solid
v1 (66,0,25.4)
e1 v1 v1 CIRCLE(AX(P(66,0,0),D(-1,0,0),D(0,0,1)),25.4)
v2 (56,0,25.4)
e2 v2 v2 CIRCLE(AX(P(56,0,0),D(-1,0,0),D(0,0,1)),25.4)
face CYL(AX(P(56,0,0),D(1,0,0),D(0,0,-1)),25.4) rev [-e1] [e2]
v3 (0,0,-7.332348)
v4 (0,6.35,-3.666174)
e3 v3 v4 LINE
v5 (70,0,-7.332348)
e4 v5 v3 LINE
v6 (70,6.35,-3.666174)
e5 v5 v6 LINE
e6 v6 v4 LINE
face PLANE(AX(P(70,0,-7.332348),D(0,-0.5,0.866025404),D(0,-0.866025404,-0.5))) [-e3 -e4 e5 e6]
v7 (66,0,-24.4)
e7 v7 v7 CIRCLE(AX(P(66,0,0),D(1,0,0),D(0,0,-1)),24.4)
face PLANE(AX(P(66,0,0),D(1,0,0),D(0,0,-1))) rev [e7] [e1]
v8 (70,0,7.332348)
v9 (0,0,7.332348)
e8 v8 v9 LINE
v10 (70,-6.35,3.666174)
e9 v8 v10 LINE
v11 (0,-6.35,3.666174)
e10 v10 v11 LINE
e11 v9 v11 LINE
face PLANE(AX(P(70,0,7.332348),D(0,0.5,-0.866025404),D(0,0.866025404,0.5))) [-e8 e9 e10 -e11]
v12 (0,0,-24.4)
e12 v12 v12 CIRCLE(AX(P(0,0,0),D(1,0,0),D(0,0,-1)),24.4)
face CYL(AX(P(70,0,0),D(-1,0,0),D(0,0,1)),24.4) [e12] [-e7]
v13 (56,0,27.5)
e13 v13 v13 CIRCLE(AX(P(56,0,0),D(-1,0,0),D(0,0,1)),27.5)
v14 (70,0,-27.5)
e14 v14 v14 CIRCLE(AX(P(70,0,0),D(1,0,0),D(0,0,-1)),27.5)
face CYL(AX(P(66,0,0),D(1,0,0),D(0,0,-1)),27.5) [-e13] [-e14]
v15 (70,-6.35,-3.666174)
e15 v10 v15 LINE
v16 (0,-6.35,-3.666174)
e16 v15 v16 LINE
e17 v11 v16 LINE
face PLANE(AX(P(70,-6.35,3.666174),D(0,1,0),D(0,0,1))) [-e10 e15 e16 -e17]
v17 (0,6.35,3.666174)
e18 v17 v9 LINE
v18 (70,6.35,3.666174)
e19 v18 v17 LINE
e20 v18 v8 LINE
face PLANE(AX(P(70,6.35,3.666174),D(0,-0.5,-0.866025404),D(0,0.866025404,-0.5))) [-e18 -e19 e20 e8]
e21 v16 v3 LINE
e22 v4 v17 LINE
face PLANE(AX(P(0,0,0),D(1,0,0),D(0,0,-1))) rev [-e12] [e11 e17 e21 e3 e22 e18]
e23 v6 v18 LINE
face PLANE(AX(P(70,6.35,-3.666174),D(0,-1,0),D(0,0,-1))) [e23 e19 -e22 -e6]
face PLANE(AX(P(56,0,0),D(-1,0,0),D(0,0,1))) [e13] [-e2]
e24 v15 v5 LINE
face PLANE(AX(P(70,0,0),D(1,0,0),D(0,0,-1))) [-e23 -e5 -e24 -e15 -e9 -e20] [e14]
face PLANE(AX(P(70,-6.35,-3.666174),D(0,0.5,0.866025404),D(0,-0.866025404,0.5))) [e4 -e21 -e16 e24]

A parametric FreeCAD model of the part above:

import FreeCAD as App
import Part
import Sketcher
from FreeCAD import Vector
Q = App.Units.Quantity


def add_polygon(sketch, points):
    """Adds a closed chain of lines whose ends are joined by coincident constraints."""
    first, n = sketch.GeometryCount, len(points)
    for a, b in zip(points, points[1:] + points[:1]):
        sketch.addGeometry(Part.LineSegment(App.Vector(*a, 0), App.Vector(*b, 0)), False)
    for i in range(n):
        sketch.addConstraint(Sketcher.Constraint("Coincident", first + i, 2, first + (i + 1) % n, 1))

doc = App.newDocument("Part")
body = doc.addObject("PartDesign::Body", "Body")

sketch1 = doc.addObject("Sketcher::SketchObject", "Sketch")
body.addObject(sketch1)
sketch1.AttachmentSupport = (doc.YZ_Plane, [""])
sketch1.MapMode = "FlatFace"
sketch1.addGeometry(Part.Circle(Vector(0, 0, 0), Vector(0, 0, 1), 24), False)
add_polygon(sketch1, [(6, -4), (0, -7), (-6, -4), (-6, 4), (0, 7), (6, 4)])
sketch1.addConstraint(Sketcher.Constraint("Vertical", 3))
sketch1.addConstraint(Sketcher.Constraint("Vertical", 6))
sketch1.addConstraint(Sketcher.Constraint("Coincident", 0, 3, -1, 1))
sketch1.addConstraint(Sketcher.Constraint("Symmetric", 1, 2, 4, 2, -1, 1))
sketch1.addConstraint(Sketcher.Constraint("Symmetric", 2, 2, 5, 2, -1, 1))
sketch1.addConstraint(Sketcher.Constraint("PointOnObject", 1, 2, -2))
sketch1.addConstraint(Sketcher.Constraint("Parallel", 1, 4))
sketch1.addConstraint(Sketcher.Constraint("Horizontal", 3, 2, 5, 2))
sketch1.addConstraint(Sketcher.Constraint("Diameter", 0, Q("48.8 mm")))
sketch1.addConstraint(Sketcher.Constraint("Angle", 1, Q("-150 deg")))
sketch1.addConstraint(Sketcher.Constraint("DistanceX", 3, 2, 5, 2, Q("12.7 mm")))
sketch1.addConstraint(Sketcher.Constraint("DistanceY", 3, 1, 3, 2, Q("7.332348 mm")))
pad1 = doc.addObject("PartDesign::Pad", "Pad")
body.addObject(pad1)
pad1.Profile = sketch1
pad1.Length = 70

sketch2 = doc.addObject("Sketcher::SketchObject", "Sketch001")
body.addObject(sketch2)
sketch2.AttachmentSupport = (doc.YZ_Plane, [""])
sketch2.MapMode = "FlatFace"
sketch2.AttachmentOffset = App.Placement(Vector(0, 0, 66), App.Rotation())
sketch2.addGeometry(Part.Circle(Vector(0, 0, 0), Vector(0, 0, 1), 28), False)
sketch2.addGeometry(Part.Circle(Vector(0, 0, 0), Vector(0, 0, 1), 24), False)
sketch2.addConstraint(Sketcher.Constraint("Coincident", 0, 3, -1, 1))
sketch2.addConstraint(Sketcher.Constraint("Coincident", 1, 3, -1, 1))
sketch2.addConstraint(Sketcher.Constraint("Diameter", 0, Q("55 mm")))
sketch2.addConstraint(Sketcher.Constraint("Diameter", 1, Q("48.8 mm")))
pad2 = doc.addObject("PartDesign::Pad", "Pad001")
body.addObject(pad2)
pad2.Profile = sketch2
pad2.Length = 4

sketch3 = doc.addObject("Sketcher::SketchObject", "Sketch002")
body.addObject(sketch3)
sketch3.AttachmentSupport = (doc.YZ_Plane, [""])
sketch3.MapMode = "FlatFace"
sketch3.AttachmentOffset = App.Placement(Vector(0, 0, 56), App.Rotation())
sketch3.addGeometry(Part.Circle(Vector(0, 0, 0), Vector(0, 0, 1), 28), False)
sketch3.addGeometry(Part.Circle(Vector(0, 0, 0), Vector(0, 0, 1), 25), False)
sketch3.addConstraint(Sketcher.Constraint("Coincident", 0, 3, -1, 1))
sketch3.addConstraint(Sketcher.Constraint("Coincident", 1, 3, -1, 1))
sketch3.addConstraint(Sketcher.Constraint("Diameter", 0, Q("55 mm")))
sketch3.addConstraint(Sketcher.Constraint("Diameter", 1, Q("50.8 mm")))
pad3 = doc.addObject("PartDesign::Pad", "Pad002")
body.addObject(pad3)
pad3.Profile = sketch3
pad3.Length = 10

doc.recompute()
